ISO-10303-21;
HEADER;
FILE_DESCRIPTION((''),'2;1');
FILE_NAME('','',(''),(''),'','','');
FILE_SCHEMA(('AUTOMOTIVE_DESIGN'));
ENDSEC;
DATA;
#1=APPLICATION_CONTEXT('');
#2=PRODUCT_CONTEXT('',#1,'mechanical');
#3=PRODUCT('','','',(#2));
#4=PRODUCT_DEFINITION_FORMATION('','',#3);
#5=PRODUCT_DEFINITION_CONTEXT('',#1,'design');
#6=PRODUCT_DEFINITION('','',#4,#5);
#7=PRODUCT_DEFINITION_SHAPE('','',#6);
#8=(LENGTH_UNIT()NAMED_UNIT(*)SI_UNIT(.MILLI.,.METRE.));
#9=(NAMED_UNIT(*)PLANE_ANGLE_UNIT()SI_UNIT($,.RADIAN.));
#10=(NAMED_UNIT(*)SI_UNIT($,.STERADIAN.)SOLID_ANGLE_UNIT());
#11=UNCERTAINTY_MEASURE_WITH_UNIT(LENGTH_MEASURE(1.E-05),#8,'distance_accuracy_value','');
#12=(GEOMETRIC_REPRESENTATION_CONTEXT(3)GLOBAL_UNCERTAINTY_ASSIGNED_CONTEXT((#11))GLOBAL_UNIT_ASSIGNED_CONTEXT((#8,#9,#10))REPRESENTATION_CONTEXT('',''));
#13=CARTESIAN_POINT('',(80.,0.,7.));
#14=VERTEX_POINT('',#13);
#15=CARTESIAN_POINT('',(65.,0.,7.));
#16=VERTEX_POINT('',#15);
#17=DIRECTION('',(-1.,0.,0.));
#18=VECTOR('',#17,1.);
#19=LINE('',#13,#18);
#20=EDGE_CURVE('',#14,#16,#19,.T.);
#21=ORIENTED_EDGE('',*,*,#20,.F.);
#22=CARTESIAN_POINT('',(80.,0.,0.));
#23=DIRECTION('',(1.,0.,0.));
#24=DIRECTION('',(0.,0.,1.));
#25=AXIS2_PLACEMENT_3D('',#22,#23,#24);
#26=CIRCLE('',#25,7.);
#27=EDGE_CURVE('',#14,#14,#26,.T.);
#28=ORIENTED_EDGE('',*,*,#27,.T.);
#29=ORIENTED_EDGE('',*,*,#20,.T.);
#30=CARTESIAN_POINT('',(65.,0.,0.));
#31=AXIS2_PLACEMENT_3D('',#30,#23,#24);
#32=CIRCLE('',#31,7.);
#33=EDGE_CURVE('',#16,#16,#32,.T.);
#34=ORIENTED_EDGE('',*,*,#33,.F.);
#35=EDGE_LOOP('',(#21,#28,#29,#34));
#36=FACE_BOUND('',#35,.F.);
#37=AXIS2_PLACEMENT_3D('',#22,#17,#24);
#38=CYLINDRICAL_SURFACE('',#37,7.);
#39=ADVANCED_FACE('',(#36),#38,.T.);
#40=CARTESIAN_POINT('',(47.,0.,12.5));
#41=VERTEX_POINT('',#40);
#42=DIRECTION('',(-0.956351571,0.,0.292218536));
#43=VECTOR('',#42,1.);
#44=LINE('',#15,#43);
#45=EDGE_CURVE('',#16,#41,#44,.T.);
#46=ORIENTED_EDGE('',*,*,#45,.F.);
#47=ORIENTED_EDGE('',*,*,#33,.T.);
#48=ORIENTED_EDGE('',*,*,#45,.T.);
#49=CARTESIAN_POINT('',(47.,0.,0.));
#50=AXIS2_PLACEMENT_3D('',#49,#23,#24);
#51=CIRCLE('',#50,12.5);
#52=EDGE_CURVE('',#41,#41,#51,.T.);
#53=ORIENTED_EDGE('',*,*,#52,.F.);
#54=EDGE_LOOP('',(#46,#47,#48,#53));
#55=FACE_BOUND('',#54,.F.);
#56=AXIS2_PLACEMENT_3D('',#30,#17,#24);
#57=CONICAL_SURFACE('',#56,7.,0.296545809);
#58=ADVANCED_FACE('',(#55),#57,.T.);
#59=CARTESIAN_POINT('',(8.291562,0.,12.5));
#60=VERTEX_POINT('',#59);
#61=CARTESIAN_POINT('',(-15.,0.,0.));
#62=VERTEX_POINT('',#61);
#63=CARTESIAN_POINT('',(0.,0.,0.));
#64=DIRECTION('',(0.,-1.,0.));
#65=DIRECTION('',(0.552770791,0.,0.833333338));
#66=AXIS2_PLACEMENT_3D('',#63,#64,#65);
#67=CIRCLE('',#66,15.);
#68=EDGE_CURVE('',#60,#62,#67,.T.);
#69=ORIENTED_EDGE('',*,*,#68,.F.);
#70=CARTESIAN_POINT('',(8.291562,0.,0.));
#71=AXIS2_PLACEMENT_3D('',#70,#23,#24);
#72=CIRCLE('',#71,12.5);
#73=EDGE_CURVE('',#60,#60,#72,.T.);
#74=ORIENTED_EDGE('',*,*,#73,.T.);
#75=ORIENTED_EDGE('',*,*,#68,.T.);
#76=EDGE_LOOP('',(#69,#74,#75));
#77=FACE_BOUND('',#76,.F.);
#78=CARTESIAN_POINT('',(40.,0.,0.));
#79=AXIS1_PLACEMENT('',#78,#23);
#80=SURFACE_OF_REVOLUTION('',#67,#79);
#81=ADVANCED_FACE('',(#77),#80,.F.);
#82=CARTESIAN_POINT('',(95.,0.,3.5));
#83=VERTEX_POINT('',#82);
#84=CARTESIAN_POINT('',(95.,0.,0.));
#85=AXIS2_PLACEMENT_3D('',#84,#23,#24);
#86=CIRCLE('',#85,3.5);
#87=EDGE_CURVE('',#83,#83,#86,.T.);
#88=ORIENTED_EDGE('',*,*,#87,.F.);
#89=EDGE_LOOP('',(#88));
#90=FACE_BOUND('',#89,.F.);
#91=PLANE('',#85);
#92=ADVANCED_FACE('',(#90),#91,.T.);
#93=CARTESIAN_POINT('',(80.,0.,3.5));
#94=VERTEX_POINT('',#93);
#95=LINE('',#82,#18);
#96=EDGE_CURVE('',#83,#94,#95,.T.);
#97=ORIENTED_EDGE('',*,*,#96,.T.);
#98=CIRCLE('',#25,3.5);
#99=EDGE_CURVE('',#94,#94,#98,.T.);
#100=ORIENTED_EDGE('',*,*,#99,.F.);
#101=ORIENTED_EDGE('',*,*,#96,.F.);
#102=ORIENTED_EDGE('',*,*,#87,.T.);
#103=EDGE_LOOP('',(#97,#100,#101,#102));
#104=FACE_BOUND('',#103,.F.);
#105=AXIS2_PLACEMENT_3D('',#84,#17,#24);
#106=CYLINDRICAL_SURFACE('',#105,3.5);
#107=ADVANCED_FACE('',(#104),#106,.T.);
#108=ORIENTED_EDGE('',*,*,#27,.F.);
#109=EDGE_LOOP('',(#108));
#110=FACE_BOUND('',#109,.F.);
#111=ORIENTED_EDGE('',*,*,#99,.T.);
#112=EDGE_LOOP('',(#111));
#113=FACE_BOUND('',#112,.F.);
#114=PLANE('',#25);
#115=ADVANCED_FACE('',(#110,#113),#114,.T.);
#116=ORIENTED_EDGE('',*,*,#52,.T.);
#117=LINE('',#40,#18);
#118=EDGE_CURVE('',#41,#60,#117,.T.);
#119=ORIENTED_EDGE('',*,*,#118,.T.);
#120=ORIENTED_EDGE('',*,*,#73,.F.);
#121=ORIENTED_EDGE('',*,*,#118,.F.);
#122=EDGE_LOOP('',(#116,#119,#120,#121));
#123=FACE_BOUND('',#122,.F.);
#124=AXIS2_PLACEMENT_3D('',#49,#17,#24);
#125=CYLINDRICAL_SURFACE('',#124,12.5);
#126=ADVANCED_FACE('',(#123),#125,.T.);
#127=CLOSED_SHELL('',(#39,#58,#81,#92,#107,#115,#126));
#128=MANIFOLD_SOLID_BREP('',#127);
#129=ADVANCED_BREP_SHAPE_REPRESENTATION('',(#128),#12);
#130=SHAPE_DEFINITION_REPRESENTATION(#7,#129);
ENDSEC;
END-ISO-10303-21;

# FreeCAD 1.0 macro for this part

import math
import FreeCAD as App
import Part
import Sketcher

V = App.Vector

doc = App.newDocument("Part")
body = doc.addObject("PartDesign::Body", "Body")

# Sketch on XZ plane
sketch1 = body.newObject("Sketcher::SketchObject", "Sketch")
sketch1.AttachmentSupport = (doc.getObject("XZ_Plane"), [""])
sketch1.MapMode = "FlatFace"
sketch1.addGeometry([
    Part.LineSegment(V(47, 12.5, 0), V(8.3, 12.5, 0)),  # 0
    Part.ArcOfCircle(Part.Circle(V(0, 0, 0), V(0, 0, 1), 15), math.radians(56), math.radians(180)),  # 1
    Part.LineSegment(V(-15, 0, 0), V(95, 0, 0)),  # 2
    Part.LineSegment(V(95, 0, 0), V(95, 3.5, 0)),  # 3
    Part.LineSegment(V(95, 3.5, 0), V(80, 3.5, 0)),  # 4
    Part.LineSegment(V(80, 3.5, 0), V(80, 7, 0)),  # 5
    Part.LineSegment(V(80, 7, 0), V(65, 7, 0)),  # 6
    Part.LineSegment(V(65, 7, 0), V(47, 12.5, 0)),  # 7
], False)
sketch1.addConstraint([
    Sketcher.Constraint("Coincident", 0, 2, 1, 1),
    Sketcher.Constraint("Coincident", 1, 2, 2, 1),
    Sketcher.Constraint("Coincident", 2, 2, 3, 1),
    Sketcher.Constraint("Coincident", 3, 2, 4, 1),
    Sketcher.Constraint("Coincident", 4, 2, 5, 1),
    Sketcher.Constraint("Coincident", 5, 2, 6, 1),
    Sketcher.Constraint("Coincident", 6, 2, 7, 1),
    Sketcher.Constraint("Coincident", 7, 2, 0, 1),
    Sketcher.Constraint("Horizontal", 0),
    Sketcher.Constraint("Horizontal", 2),
    Sketcher.Constraint("Vertical", 3),
    Sketcher.Constraint("Horizontal", 4),
    Sketcher.Constraint("Vertical", 5),
    Sketcher.Constraint("Horizontal", 6),
    Sketcher.Constraint("Coincident", 1, 3, -1, 1),
    Sketcher.Constraint("PointOnObject", 1, 2, -1),
    Sketcher.Constraint("Equal", 4, 6),
    Sketcher.Constraint("Equal", 3, 5),
    Sketcher.Constraint("Radius", 1, 15.0),
    Sketcher.Constraint("DistanceX", 2, 1, 2, 2, 110.0),
    Sketcher.Constraint("DistanceX", 4, 2, 4, 1, 15.0),
    Sketcher.Constraint("DistanceY", 3, 1, 3, 2, 3.5),
    Sketcher.Constraint("DistanceX", -1, 1, 7, 2, 47.0),
    Sketcher.Constraint("DistanceY", 3, 2, 0, 2, 9.0),
])
revolution = body.newObject("PartDesign::Revolution", "Revolution")
revolution.Profile = sketch1
revolution.ReferenceAxis = (sketch1, ["H_Axis"])
revolution.Angle = 360

doc.recompute()
